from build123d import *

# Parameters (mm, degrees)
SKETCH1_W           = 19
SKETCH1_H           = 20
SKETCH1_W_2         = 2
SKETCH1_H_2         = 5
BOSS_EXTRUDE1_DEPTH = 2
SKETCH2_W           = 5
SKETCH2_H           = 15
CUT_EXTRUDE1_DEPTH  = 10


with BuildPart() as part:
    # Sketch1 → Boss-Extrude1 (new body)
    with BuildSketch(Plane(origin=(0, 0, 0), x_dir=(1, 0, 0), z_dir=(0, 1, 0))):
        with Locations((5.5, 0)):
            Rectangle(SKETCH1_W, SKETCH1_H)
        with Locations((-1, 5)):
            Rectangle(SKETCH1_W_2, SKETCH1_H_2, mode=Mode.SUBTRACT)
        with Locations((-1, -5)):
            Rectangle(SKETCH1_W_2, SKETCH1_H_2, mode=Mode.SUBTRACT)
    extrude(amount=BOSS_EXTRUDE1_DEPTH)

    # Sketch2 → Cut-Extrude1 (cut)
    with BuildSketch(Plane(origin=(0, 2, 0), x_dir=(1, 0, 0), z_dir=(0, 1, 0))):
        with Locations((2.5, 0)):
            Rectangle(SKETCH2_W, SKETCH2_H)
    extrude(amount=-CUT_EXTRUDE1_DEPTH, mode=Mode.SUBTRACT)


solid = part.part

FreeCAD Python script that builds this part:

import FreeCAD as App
import Part
import Sketcher

V = App.Vector
Q = App.Units.Quantity

doc = App.newDocument("Part")
params = doc.addObject("Spreadsheet::Sheet", "Params")
for row, (alias, value) in enumerate([
    ("sketch1_width", "19 mm"),
    ("sketch1_width2", "2 mm"),
    ("sketch1_height", "20 mm"),
    ("sketch1_height2", "5 mm"),
    ("pad1_length", "2 mm"),
    ("sketch2_width", "5 mm"),
    ("sketch2_height", "15 mm"),
    ("pocket1_length", "10 mm"),
], start=1):
    params.set(f"A{row}", alias)
    params.set(f"B{row}", "=" + value)
    params.setAlias(f"B{row}", alias)

body = doc.addObject("PartDesign::Body", "Body")

sketch1 = body.newObject("Sketcher::SketchObject", "Sketch")
sketch1.AttachmentSupport = (doc.getObject("XZ_Plane"), [""])
sketch1.MapMode = "FlatFace"
sketch1.addGeometry(Part.LineSegment(V(-4, -10, 0), V(-4, 10, 0)), False)
sketch1.addGeometry(Part.LineSegment(V(-4, 10, 0), V(15, 10, 0)), False)
sketch1.addGeometry(Part.LineSegment(V(15, 10, 0), V(15, -10, 0)), False)
sketch1.addGeometry(Part.LineSegment(V(15, -10, 0), V(-4, -10, 0)), False)
sketch1.addGeometry(Part.LineSegment(V(0, 7.5, 0), V(-2, 7.5, 0)), False)
sketch1.addGeometry(Part.LineSegment(V(-2, 7.5, 0), V(-2, 2.5, 0)), False)
sketch1.addGeometry(Part.LineSegment(V(-2, 2.5, 0), V(0, 2.5, 0)), False)
sketch1.addGeometry(Part.LineSegment(V(0, 2.5, 0), V(0, 7.5, 0)), False)
sketch1.addGeometry(Part.LineSegment(V(0, -2.5, 0), V(-2, -2.5, 0)), False)
sketch1.addGeometry(Part.LineSegment(V(-2, -2.5, 0), V(-2, -7.5, 0)), False)
sketch1.addGeometry(Part.LineSegment(V(-2, -7.5, 0), V(0, -7.5, 0)), False)
sketch1.addGeometry(Part.LineSegment(V(0, -7.5, 0), V(0, -2.5, 0)), False)
sketch1.addConstraint(Sketcher.Constraint("Coincident", 0, 2, 1, 1))
sketch1.addConstraint(Sketcher.Constraint("Coincident", 1, 2, 2, 1))
sketch1.addConstraint(Sketcher.Constraint("Coincident", 2, 2, 3, 1))
sketch1.addConstraint(Sketcher.Constraint("Coincident", 3, 2, 0, 1))
sketch1.addConstraint(Sketcher.Constraint("Coincident", 4, 2, 5, 1))
sketch1.addConstraint(Sketcher.Constraint("Coincident", 5, 2, 6, 1))
sketch1.addConstraint(Sketcher.Constraint("Coincident", 6, 2, 7, 1))
sketch1.addConstraint(Sketcher.Constraint("Coincident", 7, 2, 4, 1))
sketch1.addConstraint(Sketcher.Constraint("Coincident", 8, 2, 9, 1))
sketch1.addConstraint(Sketcher.Constraint("Coincident", 9, 2, 10, 1))
sketch1.addConstraint(Sketcher.Constraint("Coincident", 10, 2, 11, 1))
sketch1.addConstraint(Sketcher.Constraint("Coincident", 11, 2, 8, 1))
sketch1.addConstraint(Sketcher.Constraint("Vertical", 0))
sketch1.addConstraint(Sketcher.Constraint("Horizontal", 1))
sketch1.addConstraint(Sketcher.Constraint("Vertical", 2))
sketch1.addConstraint(Sketcher.Constraint("Horizontal", 3))
sketch1.addConstraint(Sketcher.Constraint("Horizontal", 4))
sketch1.addConstraint(Sketcher.Constraint("Vertical", 5))
sketch1.addConstraint(Sketcher.Constraint("Horizontal", 6))
sketch1.addConstraint(Sketcher.Constraint("Vertical", 7))
sketch1.addConstraint(Sketcher.Constraint("Horizontal", 8))
sketch1.addConstraint(Sketcher.Constraint("Vertical", 9))
sketch1.addConstraint(Sketcher.Constraint("Horizontal", 10))
sketch1.addConstraint(Sketcher.Constraint("Vertical", 11))
sketch1.addConstraint(Sketcher.Constraint("Symmetric", 7, 2, 10, 2, -1, 1))
sketch1.addConstraint(Sketcher.Constraint("Symmetric", 5, 2, 8, 2, -1))
sketch1.addConstraint(Sketcher.Constraint("PointOnObject", 6, 2, -2))
sketch1.addConstraint(Sketcher.Constraint("DistanceX", 1, 1, 1, 2, Q("19 mm")))
sketch1.addConstraint(Sketcher.Constraint("DistanceX", 4, 2, 4, 1, Q("2 mm")))
sketch1.addConstraint(Sketcher.Constraint("DistanceY", 0, 1, 0, 2, Q("20 mm")))
sketch1.addConstraint(Sketcher.Constraint("DistanceY", 5, 2, 5, 1, Q("5 mm")))
sketch1.addConstraint(Sketcher.Constraint("DistanceX", 0, 2, -1, 1, Q("4 mm")))
sketch1.addConstraint(Sketcher.Constraint("DistanceY", -1, 1, 0, 2, Q("10 mm")))
sketch1.addConstraint(Sketcher.Constraint("DistanceY", 8, 2, 5, 2, Q("5 mm")))
sketch1.setExpression("Constraints[27]", "Params.sketch1_width")
sketch1.setExpression("Constraints[28]", "Params.sketch1_width2")
sketch1.setExpression("Constraints[29]", "Params.sketch1_height")
sketch1.setExpression("Constraints[30]", "Params.sketch1_height2")
pad1 = body.newObject("PartDesign::Pad", "Pad")
pad1.Profile = sketch1
pad1.setExpression("Length", "Params.pad1_length")
pad1.Reversed = True

sketch2 = body.newObject("Sketcher::SketchObject", "Sketch001")
sketch2.AttachmentSupport = (doc.getObject("XZ_Plane"), [""])
sketch2.MapMode = "FlatFace"
sketch2.AttachmentOffset = App.Placement(V(0, 0, -2), App.Rotation())
sketch2.addGeometry(Part.LineSegment(V(0, -8, 0), V(0, 8, 0)), False)
sketch2.addGeometry(Part.LineSegment(V(0, 8, 0), V(5, 8, 0)), False)
sketch2.addGeometry(Part.LineSegment(V(5, 8, 0), V(5, -8, 0)), False)
sketch2.addGeometry(Part.LineSegment(V(5, -8, 0), V(0, -8, 0)), False)
sketch2.addConstraint(Sketcher.Constraint("Coincident", 0, 2, 1, 1))
sketch2.addConstraint(Sketcher.Constraint("Coincident", 1, 2, 2, 1))
sketch2.addConstraint(Sketcher.Constraint("Coincident", 2, 2, 3, 1))
sketch2.addConstraint(Sketcher.Constraint("Coincident", 3, 2, 0, 1))
sketch2.addConstraint(Sketcher.Constraint("Vertical", 0))
sketch2.addConstraint(Sketcher.Constraint("Horizontal", 1))
sketch2.addConstraint(Sketcher.Constraint("Vertical", 2))
sketch2.addConstraint(Sketcher.Constraint("Horizontal", 3))
sketch2.addConstraint(Sketcher.Constraint("Symmetric", 0, 2, 3, 2, -1, 1))
sketch2.addConstraint(Sketcher.Constraint("DistanceX", 1, 1, 1, 2, Q("5 mm")))
sketch2.addConstraint(Sketcher.Constraint("DistanceY", 0, 1, 0, 2, Q("15 mm")))
sketch2.setExpression("Constraints[9]", "Params.sketch2_width")
sketch2.setExpression("Constraints[10]", "Params.sketch2_height")
pocket1 = body.newObject("PartDesign::Pocket", "Pocket")
pocket1.Profile = sketch2
pocket1.setExpression("Length", "Params.pocket1_length")
pocket1.Reversed = True

doc.recompute()
